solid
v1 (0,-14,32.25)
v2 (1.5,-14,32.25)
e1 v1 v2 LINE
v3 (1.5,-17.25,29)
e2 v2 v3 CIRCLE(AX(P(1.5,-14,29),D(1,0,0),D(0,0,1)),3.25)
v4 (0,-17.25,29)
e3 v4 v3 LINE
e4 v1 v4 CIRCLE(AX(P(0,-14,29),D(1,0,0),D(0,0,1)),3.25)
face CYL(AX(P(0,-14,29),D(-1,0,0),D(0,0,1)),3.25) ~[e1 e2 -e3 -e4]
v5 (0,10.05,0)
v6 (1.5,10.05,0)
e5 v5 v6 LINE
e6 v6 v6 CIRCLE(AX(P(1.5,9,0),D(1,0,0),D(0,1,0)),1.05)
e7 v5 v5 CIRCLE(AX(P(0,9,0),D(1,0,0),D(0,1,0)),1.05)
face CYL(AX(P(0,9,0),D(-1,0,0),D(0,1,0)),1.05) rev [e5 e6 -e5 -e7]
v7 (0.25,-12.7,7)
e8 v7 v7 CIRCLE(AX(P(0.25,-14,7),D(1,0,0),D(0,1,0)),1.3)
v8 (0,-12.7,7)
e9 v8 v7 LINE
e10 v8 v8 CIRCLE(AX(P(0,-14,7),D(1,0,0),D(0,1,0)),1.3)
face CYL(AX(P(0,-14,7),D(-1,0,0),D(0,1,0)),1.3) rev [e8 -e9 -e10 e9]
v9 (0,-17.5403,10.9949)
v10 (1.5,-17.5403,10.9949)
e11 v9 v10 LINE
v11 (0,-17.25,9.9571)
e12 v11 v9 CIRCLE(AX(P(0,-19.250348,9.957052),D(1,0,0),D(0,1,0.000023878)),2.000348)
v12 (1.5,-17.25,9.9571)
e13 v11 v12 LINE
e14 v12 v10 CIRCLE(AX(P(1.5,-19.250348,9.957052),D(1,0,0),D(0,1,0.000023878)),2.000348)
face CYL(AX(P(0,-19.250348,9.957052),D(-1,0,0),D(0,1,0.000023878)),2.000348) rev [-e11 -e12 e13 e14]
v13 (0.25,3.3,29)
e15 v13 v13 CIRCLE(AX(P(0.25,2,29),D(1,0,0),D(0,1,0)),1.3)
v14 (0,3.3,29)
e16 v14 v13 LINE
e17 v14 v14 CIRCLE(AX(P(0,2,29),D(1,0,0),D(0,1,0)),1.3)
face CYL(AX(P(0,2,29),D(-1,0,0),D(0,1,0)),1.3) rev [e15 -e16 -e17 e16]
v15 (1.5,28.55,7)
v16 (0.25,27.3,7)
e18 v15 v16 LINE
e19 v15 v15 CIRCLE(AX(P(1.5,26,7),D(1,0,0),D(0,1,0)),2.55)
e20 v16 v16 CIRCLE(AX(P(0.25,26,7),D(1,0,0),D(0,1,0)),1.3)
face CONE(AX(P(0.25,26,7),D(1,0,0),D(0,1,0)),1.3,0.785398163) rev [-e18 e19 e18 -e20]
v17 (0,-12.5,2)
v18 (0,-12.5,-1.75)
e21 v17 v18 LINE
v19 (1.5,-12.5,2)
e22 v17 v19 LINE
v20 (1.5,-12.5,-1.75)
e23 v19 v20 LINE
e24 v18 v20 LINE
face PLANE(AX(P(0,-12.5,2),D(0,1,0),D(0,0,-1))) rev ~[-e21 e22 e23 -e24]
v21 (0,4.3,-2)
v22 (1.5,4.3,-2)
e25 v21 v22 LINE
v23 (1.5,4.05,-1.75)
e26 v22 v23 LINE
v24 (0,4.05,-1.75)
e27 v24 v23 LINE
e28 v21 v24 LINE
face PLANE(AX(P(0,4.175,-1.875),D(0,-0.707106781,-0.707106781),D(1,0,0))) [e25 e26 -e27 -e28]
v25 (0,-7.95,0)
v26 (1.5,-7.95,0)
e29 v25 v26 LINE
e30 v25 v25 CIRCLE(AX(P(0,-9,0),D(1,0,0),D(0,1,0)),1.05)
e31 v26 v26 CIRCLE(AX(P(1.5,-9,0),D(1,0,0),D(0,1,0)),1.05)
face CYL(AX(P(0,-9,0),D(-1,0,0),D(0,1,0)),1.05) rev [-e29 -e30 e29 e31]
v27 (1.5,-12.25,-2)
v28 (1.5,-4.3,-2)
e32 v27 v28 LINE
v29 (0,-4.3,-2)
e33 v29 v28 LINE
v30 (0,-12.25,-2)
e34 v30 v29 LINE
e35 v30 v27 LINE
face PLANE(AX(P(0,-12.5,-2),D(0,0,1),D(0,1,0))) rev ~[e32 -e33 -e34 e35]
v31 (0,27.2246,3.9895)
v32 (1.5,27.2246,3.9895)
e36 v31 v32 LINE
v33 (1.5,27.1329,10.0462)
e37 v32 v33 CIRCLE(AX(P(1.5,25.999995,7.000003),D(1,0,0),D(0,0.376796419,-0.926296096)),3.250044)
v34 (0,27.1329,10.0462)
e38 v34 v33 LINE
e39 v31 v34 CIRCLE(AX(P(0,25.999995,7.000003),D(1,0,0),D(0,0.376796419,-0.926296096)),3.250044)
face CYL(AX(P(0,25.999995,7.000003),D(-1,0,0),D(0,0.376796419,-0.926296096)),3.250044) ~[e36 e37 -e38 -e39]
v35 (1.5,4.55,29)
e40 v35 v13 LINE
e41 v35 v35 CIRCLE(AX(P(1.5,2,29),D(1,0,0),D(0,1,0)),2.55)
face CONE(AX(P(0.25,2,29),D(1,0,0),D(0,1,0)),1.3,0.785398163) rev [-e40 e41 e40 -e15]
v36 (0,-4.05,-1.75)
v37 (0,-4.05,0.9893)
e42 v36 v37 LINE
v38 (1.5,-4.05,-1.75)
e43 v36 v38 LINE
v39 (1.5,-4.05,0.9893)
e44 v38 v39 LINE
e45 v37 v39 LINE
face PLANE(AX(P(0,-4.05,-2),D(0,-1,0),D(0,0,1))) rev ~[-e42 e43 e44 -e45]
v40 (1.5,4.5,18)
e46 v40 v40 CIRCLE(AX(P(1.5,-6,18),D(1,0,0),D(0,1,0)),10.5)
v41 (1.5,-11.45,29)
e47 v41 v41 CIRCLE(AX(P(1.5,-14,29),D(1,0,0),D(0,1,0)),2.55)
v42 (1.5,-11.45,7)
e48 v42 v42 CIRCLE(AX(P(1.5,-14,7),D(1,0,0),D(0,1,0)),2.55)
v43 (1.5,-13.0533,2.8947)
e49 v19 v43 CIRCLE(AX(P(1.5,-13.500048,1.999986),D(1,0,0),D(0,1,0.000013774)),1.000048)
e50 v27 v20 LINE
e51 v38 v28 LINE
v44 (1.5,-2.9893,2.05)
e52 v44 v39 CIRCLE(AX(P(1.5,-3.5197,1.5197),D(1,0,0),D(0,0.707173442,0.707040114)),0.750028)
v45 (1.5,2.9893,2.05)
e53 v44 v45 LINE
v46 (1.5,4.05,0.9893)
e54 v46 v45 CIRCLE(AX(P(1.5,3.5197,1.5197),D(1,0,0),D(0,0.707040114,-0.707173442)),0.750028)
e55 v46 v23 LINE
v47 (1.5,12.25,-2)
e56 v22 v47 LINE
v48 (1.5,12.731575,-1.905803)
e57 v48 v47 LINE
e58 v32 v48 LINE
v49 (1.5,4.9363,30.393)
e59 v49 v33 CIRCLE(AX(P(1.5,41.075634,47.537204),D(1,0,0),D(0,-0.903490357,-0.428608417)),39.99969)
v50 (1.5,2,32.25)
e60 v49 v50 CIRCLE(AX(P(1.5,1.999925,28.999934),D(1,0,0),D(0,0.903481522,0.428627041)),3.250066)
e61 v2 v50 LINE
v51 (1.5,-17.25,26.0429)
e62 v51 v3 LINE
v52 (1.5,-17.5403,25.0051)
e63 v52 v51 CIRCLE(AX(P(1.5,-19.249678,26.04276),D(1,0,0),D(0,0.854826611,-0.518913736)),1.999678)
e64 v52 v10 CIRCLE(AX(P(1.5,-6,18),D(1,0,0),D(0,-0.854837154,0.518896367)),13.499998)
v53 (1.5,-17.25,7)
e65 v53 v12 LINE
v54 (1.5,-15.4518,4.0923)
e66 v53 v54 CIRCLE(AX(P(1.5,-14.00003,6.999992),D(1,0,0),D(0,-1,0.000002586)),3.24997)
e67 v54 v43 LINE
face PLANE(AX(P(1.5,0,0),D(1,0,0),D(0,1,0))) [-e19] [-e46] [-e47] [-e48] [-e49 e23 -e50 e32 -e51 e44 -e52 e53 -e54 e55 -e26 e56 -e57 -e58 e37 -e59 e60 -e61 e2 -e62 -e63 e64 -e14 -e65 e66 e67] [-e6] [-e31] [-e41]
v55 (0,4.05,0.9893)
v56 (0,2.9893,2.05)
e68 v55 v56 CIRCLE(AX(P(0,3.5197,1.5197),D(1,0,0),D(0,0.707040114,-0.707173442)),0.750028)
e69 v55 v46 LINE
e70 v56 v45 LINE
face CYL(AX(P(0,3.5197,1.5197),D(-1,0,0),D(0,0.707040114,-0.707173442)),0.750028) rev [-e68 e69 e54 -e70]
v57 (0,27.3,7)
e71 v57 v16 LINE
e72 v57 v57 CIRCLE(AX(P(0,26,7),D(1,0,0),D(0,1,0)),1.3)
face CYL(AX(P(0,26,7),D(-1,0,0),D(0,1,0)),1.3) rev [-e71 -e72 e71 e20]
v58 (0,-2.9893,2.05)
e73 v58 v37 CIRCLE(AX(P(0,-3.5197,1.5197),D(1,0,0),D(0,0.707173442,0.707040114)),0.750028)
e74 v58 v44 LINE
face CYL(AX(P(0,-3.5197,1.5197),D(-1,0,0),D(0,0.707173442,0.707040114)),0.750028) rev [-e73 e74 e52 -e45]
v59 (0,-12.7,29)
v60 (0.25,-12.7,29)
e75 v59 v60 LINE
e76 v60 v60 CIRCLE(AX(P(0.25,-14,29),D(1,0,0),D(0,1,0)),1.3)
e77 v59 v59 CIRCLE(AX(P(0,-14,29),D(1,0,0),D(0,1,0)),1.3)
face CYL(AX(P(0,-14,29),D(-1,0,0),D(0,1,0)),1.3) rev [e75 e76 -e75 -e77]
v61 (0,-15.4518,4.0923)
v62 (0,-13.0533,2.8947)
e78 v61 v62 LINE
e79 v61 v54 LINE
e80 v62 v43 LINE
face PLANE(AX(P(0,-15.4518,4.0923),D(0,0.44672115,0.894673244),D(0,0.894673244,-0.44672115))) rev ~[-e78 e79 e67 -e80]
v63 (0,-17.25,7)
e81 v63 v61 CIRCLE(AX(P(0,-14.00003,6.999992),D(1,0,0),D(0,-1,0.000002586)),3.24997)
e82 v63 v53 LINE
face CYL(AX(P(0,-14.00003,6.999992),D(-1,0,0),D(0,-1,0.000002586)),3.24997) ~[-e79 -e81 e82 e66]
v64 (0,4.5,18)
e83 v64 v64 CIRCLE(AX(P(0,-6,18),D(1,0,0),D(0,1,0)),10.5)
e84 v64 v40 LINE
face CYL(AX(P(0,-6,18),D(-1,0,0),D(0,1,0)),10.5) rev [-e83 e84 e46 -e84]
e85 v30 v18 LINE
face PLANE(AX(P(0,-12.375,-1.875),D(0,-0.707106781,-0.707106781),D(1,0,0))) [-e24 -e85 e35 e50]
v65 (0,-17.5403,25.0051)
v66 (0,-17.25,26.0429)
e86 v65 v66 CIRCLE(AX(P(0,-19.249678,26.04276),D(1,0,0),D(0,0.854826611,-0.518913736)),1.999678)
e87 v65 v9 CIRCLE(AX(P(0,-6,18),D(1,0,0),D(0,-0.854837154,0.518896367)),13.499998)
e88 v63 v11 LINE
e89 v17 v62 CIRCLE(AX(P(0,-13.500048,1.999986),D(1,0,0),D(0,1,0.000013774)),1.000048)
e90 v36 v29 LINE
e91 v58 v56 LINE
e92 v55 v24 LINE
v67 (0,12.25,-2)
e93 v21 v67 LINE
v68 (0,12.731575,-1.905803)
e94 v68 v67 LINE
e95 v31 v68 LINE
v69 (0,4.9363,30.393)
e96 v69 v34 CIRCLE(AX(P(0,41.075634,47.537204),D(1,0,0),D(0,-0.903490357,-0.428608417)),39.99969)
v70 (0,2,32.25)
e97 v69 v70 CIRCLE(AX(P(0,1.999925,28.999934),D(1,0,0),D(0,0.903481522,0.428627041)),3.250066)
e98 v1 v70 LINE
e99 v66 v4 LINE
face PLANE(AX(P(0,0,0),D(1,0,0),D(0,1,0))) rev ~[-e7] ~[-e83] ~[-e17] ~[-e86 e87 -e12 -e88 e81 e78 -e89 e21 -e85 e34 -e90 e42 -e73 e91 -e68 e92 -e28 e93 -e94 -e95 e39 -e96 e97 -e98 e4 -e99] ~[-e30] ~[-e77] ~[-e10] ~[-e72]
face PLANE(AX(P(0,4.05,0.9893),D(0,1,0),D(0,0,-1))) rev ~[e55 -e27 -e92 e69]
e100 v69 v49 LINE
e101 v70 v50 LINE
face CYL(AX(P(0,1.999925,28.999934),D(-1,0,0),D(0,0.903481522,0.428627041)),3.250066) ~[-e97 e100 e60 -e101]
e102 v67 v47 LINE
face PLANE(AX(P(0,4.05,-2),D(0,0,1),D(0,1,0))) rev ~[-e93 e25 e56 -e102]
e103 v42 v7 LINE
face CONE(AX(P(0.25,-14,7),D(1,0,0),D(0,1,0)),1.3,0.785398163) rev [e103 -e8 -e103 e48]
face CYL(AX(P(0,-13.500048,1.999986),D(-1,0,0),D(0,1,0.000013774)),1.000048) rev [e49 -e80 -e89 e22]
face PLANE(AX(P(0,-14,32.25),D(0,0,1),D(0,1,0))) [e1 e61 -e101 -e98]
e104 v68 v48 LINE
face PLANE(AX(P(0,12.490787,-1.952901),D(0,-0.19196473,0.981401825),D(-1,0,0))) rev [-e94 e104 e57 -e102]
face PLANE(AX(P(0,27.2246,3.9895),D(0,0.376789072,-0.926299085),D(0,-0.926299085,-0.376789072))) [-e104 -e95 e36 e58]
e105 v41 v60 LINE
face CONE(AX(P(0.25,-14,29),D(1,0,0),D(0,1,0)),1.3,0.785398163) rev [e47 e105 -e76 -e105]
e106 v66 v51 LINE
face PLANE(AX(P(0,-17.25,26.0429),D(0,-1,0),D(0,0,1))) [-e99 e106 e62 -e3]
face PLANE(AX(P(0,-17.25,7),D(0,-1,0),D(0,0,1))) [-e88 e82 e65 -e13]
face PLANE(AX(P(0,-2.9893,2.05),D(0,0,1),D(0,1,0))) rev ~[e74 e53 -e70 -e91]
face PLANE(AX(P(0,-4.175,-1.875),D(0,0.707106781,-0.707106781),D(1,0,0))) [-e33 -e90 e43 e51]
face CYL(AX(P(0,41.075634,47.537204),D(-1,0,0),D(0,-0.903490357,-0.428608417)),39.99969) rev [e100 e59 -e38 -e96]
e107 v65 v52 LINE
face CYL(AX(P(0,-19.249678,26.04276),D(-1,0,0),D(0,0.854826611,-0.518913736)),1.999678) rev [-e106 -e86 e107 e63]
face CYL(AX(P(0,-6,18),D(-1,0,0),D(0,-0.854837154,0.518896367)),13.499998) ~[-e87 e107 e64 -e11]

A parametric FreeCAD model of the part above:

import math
import FreeCAD as App
import Part
import Sketcher


def edges_at(feature, points):
    """Names of the edges that pass closest to the given points."""
    edges = feature.Shape.Edges
    near = lambda p: min(range(len(edges)), key=lambda i: edges[i].distToShape(Part.Vertex(*p))[0])
    return sorted({f"Edge{near(p) + 1}" for p in points})

doc = App.newDocument("Part")
body = doc.addObject("PartDesign::Body", "Body")

sketch1 = body.newObject("Sketcher::SketchObject", "Sketch")
sketch1.AttachmentSupport = (doc.getObject("YZ_Plane"), [""])
sketch1.MapMode = "FlatFace"
sketch1.addGeometry([
    Part.ArcOfCircle(Part.Circle(App.Vector(-13.5, 2, 0), App.Vector(0, 0, 1), 1), math.radians(0), math.radians(63)),
    Part.LineSegment(App.Vector(-12.5, 2, 0), App.Vector(-12.5, -2, 0)),
    Part.LineSegment(App.Vector(-12.5, -2, 0), App.Vector(-4, -2, 0)),
    Part.LineSegment(App.Vector(-4, -2, 0), App.Vector(-4, 1, 0)),
    Part.ArcOfCircle(Part.Circle(App.Vector(-3.5, 1.5, 0), App.Vector(0, 0, 1), 0.8), math.radians(45), math.radians(225)),
    Part.LineSegment(App.Vector(-3, 2, 0), App.Vector(3, 2, 0)),
    Part.ArcOfCircle(Part.Circle(App.Vector(3.5, 1.5, 0), App.Vector(0, 0, 1), 0.8), math.radians(-45), math.radians(135)),
    Part.LineSegment(App.Vector(4, 1, 0), App.Vector(4, -2, 0)),
    Part.LineSegment(App.Vector(4, -2, 0), App.Vector(12.5, -2, 0)),
    Part.LineSegment(App.Vector(12.5, -2, 0), App.Vector(27.2, 4, 0)),
    Part.ArcOfCircle(Part.Circle(App.Vector(26, 7, 0), App.Vector(0, 0, 1), 3.3), math.radians(-68), math.radians(70)),
    Part.ArcOfCircle(Part.Circle(App.Vector(41.1, 47.5, 0), App.Vector(0, 0, 1), 40), math.radians(-155), math.radians(-110)),
    Part.ArcOfCircle(Part.Circle(App.Vector(2, 29, 0), App.Vector(0, 0, 1), 3.2), math.radians(25), math.radians(90)),
    Part.LineSegment(App.Vector(2, 32.2, 0), App.Vector(-14, 32.2, 0)),
    Part.ArcOfCircle(Part.Circle(App.Vector(-14, 29, 0), App.Vector(0, 0, 1), 3.2), math.radians(90), math.radians(180)),
    Part.LineSegment(App.Vector(-17.2, 29, 0), App.Vector(-17.2, 26, 0)),
    Part.ArcOfCircle(Part.Circle(App.Vector(-19.2, 26, 0), App.Vector(0, 0, 1), 2), math.radians(-31), math.radians(0)),
    Part.ArcOfCircle(Part.Circle(App.Vector(-6, 18, 0), App.Vector(0, 0, 1), 13.5), math.radians(149), math.radians(211)),
    Part.ArcOfCircle(Part.Circle(App.Vector(-19.2, 10, 0), App.Vector(0, 0, 1), 2), math.radians(0), math.radians(31)),
    Part.LineSegment(App.Vector(-17.2, 10, 0), App.Vector(-17.2, 7, 0)),
    Part.ArcOfCircle(Part.Circle(App.Vector(-14, 7, 0), App.Vector(0, 0, 1), 3.2), math.radians(180), math.radians(243)),
    Part.LineSegment(App.Vector(-15.5, 4.1, 0), App.Vector(-13.1, 2.9, 0)),
    Part.Circle(App.Vector(-9, 0, 0), App.Vector(0, 0, 1), 1.1),
    Part.Circle(App.Vector(-14, 7, 0), App.Vector(0, 0, 1), 1.3),
    Part.Circle(App.Vector(9, 0, 0), App.Vector(0, 0, 1), 1.1),
    Part.Circle(App.Vector(26, 7, 0), App.Vector(0, 0, 1), 1.3),
    Part.Circle(App.Vector(-6, 18, 0), App.Vector(0, 0, 1), 10.5),
    Part.Circle(App.Vector(-14, 29, 0), App.Vector(0, 0, 1), 1.3),
    Part.Circle(App.Vector(2, 29, 0), App.Vector(0, 0, 1), 1.3),
], False)
sketch1.addConstraint([
    Sketcher.Constraint("Tangent", 0, 1, 1, 1),
    Sketcher.Constraint("Coincident", 1, 2, 2, 1),
    Sketcher.Constraint("Coincident", 2, 2, 3, 1),
    Sketcher.Constraint("Coincident", 3, 2, 4, 2),
    Sketcher.Constraint("Coincident", 4, 1, 5, 1),
    Sketcher.Constraint("Coincident", 5, 2, 6, 2),
    Sketcher.Constraint("Coincident", 6, 1, 7, 1),
    Sketcher.Constraint("Coincident", 7, 2, 8, 1),
    Sketcher.Constraint("Coincident", 8, 2, 9, 1),
    Sketcher.Constraint("Tangent", 9, 2, 10, 1),
    Sketcher.Constraint("Tangent", 10, 2, 11, 2),
    Sketcher.Constraint("Tangent", 11, 1, 12, 1),
    Sketcher.Constraint("Tangent", 12, 2, 13, 1),
    Sketcher.Constraint("Tangent", 13, 2, 14, 1),
    Sketcher.Constraint("Tangent", 14, 2, 15, 1),
    Sketcher.Constraint("Tangent", 15, 2, 16, 2),
    Sketcher.Constraint("Tangent", 16, 1, 17, 1),
    Sketcher.Constraint("Tangent", 17, 2, 18, 2),
    Sketcher.Constraint("Tangent", 18, 1, 19, 1),
    Sketcher.Constraint("Tangent", 19, 2, 20, 1),
    Sketcher.Constraint("Tangent", 20, 2, 21, 1),
    Sketcher.Constraint("Tangent", 21, 2, 0, 2),
    Sketcher.Constraint("Vertical", 1),
    Sketcher.Constraint("Horizontal", 2),
    Sketcher.Constraint("Vertical", 3),
    Sketcher.Constraint("Horizontal", 5),
    Sketcher.Constraint("Vertical", 7),
    Sketcher.Constraint("Horizontal", 8),
    Sketcher.Constraint("Horizontal", 13),
    Sketcher.Constraint("Vertical", 15),
    Sketcher.Constraint("Vertical", 19),
    Sketcher.Constraint("Coincident", 23, 3, 20, 3),
    Sketcher.Constraint("Coincident", 25, 3, 10, 3),
    Sketcher.Constraint("Coincident", 26, 3, 17, 3),
    Sketcher.Constraint("Coincident", 27, 3, 14, 3),
    Sketcher.Constraint("Coincident", 28, 3, 12, 3),
    Sketcher.Constraint("Equal", 4, 6),
    Sketcher.Constraint("Equal", 10, 12),
    Sketcher.Constraint("Equal", 12, 14),
    Sketcher.Constraint("Equal", 16, 18),
    Sketcher.Constraint("Equal", 14, 20),
    Sketcher.Constraint("Equal", 22, 24),
    Sketcher.Constraint("Equal", 23, 25),
    Sketcher.Constraint("Equal", 25, 27),
    Sketcher.Constraint("Equal", 27, 28),
    Sketcher.Constraint("Symmetric", 22, 3, 24, 3, -1, 1),
    Sketcher.Constraint("Symmetric", 0, 1, 8, 2, -1, 1),
    Sketcher.Constraint("Symmetric", 4, 3, 6, 3, -2),
    Sketcher.Constraint("Symmetric", 2, 2, 7, 2, -2),
    Sketcher.Constraint("PointOnObject", 22, 3, -1),
    Sketcher.Constraint("Horizontal", 10, 3, 20, 3),
    Sketcher.Constraint("Vertical", 16, 3, 18, 3),
    Sketcher.Constraint("Equal", 15, 19),
    Sketcher.Constraint("Diameter", 26, 21.0),
    Sketcher.Constraint("Radius", 0, 1.0),
    Sketcher.Constraint("Radius", 11, 40.0),
    Sketcher.Constraint("Radius", 16, 2.0),
    Sketcher.Constraint("Diameter", 22, 2.1),
    Sketcher.Constraint("Diameter", 23, 2.6),
    Sketcher.Constraint("DistanceX", 13, 2, 13, 1, 16.0),
    Sketcher.Constraint("DistanceY", 1, 2, 1, 1, 4.0),
    Sketcher.Constraint("Radius", 4, 0.75),
    Sketcher.Constraint("Radius", 10, 3.25),
    Sketcher.Constraint("DistanceX", -1, 1, 12, 3, 2.0),
    Sketcher.Constraint("DistanceX", 17, 3, -1, 1, 6.0),
    Sketcher.Constraint("DistanceY", -1, 1, 17, 3, 18.0),
    Sketcher.Constraint("DistanceY", 10, 3, 12, 3, 22.0),
    Sketcher.Constraint("DistanceX", 14, 3, 10, 3, 40.0),
    Sketcher.Constraint("DistanceX", 22, 3, 24, 3, 18.0),
    Sketcher.Constraint("Radius", 17, 13.5),
    Sketcher.Constraint("DistanceX", 2, 2, 7, 2, 8.1),
    Sketcher.Constraint("DistanceY", 2, 2, 4, 1, 4.05),
    Sketcher.Constraint("DistanceX", 2, 1, 2, 2, 8.45),
    Sketcher.Constraint("DistanceY", 6, 1, 9, 2, 3.0002),
    Sketcher.Constraint("DistanceX", 4, 1, 6, 3, 6.509),
])
pad1 = body.newObject("PartDesign::Pad", "Pad")
pad1.Profile = sketch1
pad1.Length = 1.5
doc.recompute()

chamfer = body.newObject("PartDesign::Chamfer", "Chamfer")
chamfer.Base = (pad1, edges_at(pad1, [
    (0.75, -12.5, -2),
    (0.75, -4.05, -2),
    (0.75, 4.05, -2),
    (0.75, 12.5, -2),
]))
chamfer.Size = 0.25
doc.recompute()

chamfer2 = body.newObject("PartDesign::Chamfer", "Chamfer001")
chamfer2.Base = (chamfer, edges_at(chamfer, [
    (1.5, 24.7, 7),
    (1.5, 0.7, 29),
    (1.5, -15.3, 29),
    (1.5, -15.3, 7),
]))
chamfer2.Size = 1.25

doc.recompute()
